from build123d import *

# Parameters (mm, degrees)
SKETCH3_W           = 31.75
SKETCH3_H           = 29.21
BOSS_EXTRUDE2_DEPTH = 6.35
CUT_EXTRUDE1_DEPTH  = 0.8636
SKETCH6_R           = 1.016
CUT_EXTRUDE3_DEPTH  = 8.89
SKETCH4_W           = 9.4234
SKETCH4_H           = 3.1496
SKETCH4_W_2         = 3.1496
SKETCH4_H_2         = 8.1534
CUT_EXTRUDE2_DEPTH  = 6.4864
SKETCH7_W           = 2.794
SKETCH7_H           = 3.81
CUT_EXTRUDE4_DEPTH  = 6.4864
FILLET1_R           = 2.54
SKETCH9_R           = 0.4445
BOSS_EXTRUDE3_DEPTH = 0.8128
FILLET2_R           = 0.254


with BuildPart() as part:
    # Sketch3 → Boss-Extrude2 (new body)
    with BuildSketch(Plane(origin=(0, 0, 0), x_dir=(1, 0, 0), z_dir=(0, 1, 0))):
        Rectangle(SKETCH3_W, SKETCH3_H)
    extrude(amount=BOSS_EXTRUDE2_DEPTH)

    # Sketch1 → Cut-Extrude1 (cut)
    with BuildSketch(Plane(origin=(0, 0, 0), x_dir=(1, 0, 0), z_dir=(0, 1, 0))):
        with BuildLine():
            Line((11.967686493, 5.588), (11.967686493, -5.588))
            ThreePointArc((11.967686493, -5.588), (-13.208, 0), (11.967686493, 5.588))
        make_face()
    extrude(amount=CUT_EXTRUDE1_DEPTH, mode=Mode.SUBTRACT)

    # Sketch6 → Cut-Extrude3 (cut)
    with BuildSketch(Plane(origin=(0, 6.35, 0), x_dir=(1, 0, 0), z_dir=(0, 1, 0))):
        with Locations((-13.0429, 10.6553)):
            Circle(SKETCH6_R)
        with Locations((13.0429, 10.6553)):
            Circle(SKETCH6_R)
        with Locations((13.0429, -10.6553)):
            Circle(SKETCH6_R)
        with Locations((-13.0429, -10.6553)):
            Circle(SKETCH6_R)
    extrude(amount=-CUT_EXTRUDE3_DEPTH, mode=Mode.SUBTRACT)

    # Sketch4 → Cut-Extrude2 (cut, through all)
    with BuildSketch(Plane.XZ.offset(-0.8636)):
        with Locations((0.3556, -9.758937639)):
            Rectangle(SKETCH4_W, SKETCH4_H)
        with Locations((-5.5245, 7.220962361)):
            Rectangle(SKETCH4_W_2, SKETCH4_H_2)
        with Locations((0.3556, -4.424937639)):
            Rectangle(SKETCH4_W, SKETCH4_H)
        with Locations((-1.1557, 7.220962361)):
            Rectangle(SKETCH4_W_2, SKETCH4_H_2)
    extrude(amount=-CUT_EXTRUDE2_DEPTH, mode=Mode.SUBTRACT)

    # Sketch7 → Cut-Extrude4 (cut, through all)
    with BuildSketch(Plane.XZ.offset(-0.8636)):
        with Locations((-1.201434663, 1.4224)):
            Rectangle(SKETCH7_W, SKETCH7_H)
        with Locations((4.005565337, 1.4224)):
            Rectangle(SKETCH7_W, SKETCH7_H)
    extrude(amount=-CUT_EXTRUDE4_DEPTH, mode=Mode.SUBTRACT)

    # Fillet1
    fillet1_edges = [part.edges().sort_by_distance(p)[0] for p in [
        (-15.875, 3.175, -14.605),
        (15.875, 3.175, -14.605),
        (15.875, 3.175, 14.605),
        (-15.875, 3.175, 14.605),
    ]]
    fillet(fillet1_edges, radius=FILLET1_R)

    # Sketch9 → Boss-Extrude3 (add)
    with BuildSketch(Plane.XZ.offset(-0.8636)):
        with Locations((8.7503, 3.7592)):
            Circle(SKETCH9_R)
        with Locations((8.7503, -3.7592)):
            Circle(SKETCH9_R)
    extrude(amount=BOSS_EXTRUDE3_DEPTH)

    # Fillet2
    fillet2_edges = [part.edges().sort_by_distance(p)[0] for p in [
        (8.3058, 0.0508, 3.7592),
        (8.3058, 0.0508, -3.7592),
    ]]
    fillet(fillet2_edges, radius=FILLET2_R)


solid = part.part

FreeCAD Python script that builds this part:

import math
import FreeCAD as App
import Part
import Sketcher
from FreeCAD import Vector
Q = App.Units.Quantity


def edges_at(feature, points):
    """Names of the edges that pass closest to the given points."""
    edges = feature.Shape.Edges
    near = lambda p: min(range(len(edges)), key=lambda i: edges[i].distToShape(Part.Vertex(*p))[0])
    return sorted({f"Edge{near(p) + 1}" for p in points})

doc = App.newDocument("Part")
body = doc.addObject("PartDesign::Body", "Body")

# Sketch on XZ plane
sketch1 = doc.addObject("Sketcher::SketchObject", "Sketch")
body.addObject(sketch1)
sketch1.AttachmentSupport = (doc.XZ_Plane, [""])
sketch1.MapMode = "FlatFace"
sketch1.addGeometry(Part.LineSegment(Vector(-15.875, -14.605, 0), Vector(-15.875, 14.605, 0)), False)
sketch1.addGeometry(Part.LineSegment(Vector(-15.875, 14.605, 0), Vector(15.875, 14.605, 0)), False)
sketch1.addGeometry(Part.LineSegment(Vector(15.875, 14.605, 0), Vector(15.875, -14.605, 0)), False)
sketch1.addGeometry(Part.LineSegment(Vector(15.875, -14.605, 0), Vector(-15.875, -14.605, 0)), False)
sketch1.addConstraint(Sketcher.Constraint("Coincident", 0, 2, 1, 1))
sketch1.addConstraint(Sketcher.Constraint("Coincident", 1, 2, 2, 1))
sketch1.addConstraint(Sketcher.Constraint("Coincident", 2, 2, 3, 1))
sketch1.addConstraint(Sketcher.Constraint("Coincident", 3, 2, 0, 1))
sketch1.addConstraint(Sketcher.Constraint("Vertical", 0))
sketch1.addConstraint(Sketcher.Constraint("Horizontal", 1))
sketch1.addConstraint(Sketcher.Constraint("Vertical", 2))
sketch1.addConstraint(Sketcher.Constraint("Horizontal", 3))
sketch1.addConstraint(Sketcher.Constraint("Symmetric", 0, 2, 2, 2, -1, 1))
sketch1.addConstraint(Sketcher.Constraint("DistanceX", 1, 1, 1, 2, Q("1.25 in")))
sketch1.addConstraint(Sketcher.Constraint("DistanceY", 0, 1, 0, 2, Q("1.15 in")))
pad1 = doc.addObject("PartDesign::Pad", "Pad")
body.addObject(pad1)
pad1.Profile = sketch1
pad1.Length = Q("0.25 in")
pad1.Reversed = True

# Sketch on XZ plane
sketch2 = doc.addObject("Sketcher::SketchObject", "Sketch001")
body.addObject(sketch2)
sketch2.AttachmentSupport = (doc.XZ_Plane, [""])
sketch2.MapMode = "FlatFace"
sketch2.addGeometry(Part.LineSegment(Vector(11.967686, 5.588, 0), Vector(11.967686, -5.588, 0)), False)
sketch2.addGeometry(Part.ArcOfCircle(Part.Circle(Vector(0, 0, 0), Vector(0, 0, 1), 13.208), math.radians(25.028999), math.radians(334.971001)), False)
sketch2.addConstraint(Sketcher.Constraint("Coincident", 0, 1, 1, 1))
sketch2.addConstraint(Sketcher.Constraint("Coincident", 1, 2, 0, 2))
sketch2.addConstraint(Sketcher.Constraint("Vertical", 0))
sketch2.addConstraint(Sketcher.Constraint("Coincident", 1, 3, -1, 1))
sketch2.addConstraint(Sketcher.Constraint("Radius", 1, Q("0.52 in")))
sketch2.addConstraint(Sketcher.Constraint("DistanceY", 0, 2, 0, 1, Q("0.44 in")))
pocket1 = doc.addObject("PartDesign::Pocket", "Pocket")
body.addObject(pocket1)
pocket1.Profile = sketch2
pocket1.Length = Q("0.034 in")

# Sketch on XZ plane
sketch3 = doc.addObject("Sketcher::SketchObject", "Sketch002")
body.addObject(sketch3)
sketch3.AttachmentSupport = (doc.XZ_Plane, [""])
sketch3.MapMode = "FlatFace"
sketch3.AttachmentOffset = App.Placement(Vector(0, 0, -0.25 * 25.4), App.Rotation())
sketch3.addGeometry(Part.Circle(Vector(-13.0429, -10.6553, 0), Vector(0, 0, 1), 1.016), False)
sketch3.addGeometry(Part.Circle(Vector(13.0429, -10.6553, 0), Vector(0, 0, 1), 1.016), False)
sketch3.addGeometry(Part.Circle(Vector(13.0429, 10.6553, 0), Vector(0, 0, 1), 1.016), False)
sketch3.addGeometry(Part.Circle(Vector(-13.0429, 10.6553, 0), Vector(0, 0, 1), 1.016), False)
sketch3.addConstraint(Sketcher.Constraint("Equal", 0, 1))
sketch3.addConstraint(Sketcher.Constraint("Equal", 1, 2))
sketch3.addConstraint(Sketcher.Constraint("Equal", 2, 3))
sketch3.addConstraint(Sketcher.Constraint("Symmetric", 0, 3, 2, 3, -1, 1))
sketch3.addConstraint(Sketcher.Constraint("Symmetric", 1, 3, 3, 3, -1, 1))
sketch3.addConstraint(Sketcher.Constraint("Symmetric", 0, 3, 1, 3, -2))
sketch3.addConstraint(Sketcher.Constraint("Diameter", 0, Q("0.08 in")))
sketch3.addConstraint(Sketcher.Constraint("DistanceX", 0, 3, 1, 3, Q("1.027 in")))
sketch3.addConstraint(Sketcher.Constraint("DistanceY", 1, 3, 2, 3, Q("0.839 in")))
pocket2 = doc.addObject("PartDesign::Pocket", "Pocket001")
body.addObject(pocket2)
pocket2.Profile = sketch3
pocket2.Length = Q("0.35 in")
pocket2.Reversed = True

# Sketch on XZ plane
sketch4 = doc.addObject("Sketcher::SketchObject", "Sketch003")
body.addObject(sketch4)
sketch4.AttachmentSupport = (doc.XZ_Plane, [""])
sketch4.MapMode = "FlatFace"
sketch4.AttachmentOffset = App.Placement(Vector(0, 0, -0.034 * 25.4), App.Rotation())
sketch4.addGeometry(Part.LineSegment(Vector(-4.3561, -8.184138, 0), Vector(-4.3561, -11.333738, 0)), False)
sketch4.addGeometry(Part.LineSegment(Vector(-4.3561, -11.333738, 0), Vector(5.0673, -11.333738, 0)), False)
sketch4.addGeometry(Part.LineSegment(Vector(5.0673, -11.333738, 0), Vector(5.0673, -8.184138, 0)), False)
sketch4.addGeometry(Part.LineSegment(Vector(5.0673, -8.184138, 0), Vector(-4.3561, -8.184138, 0)), False)
sketch4.addGeometry(Part.LineSegment(Vector(-7.0993, 11.297662, 0), Vector(-7.0993, 3.144262, 0)), False)
sketch4.addGeometry(Part.LineSegment(Vector(-7.0993, 3.144262, 0), Vector(-3.9497, 3.144262, 0)), False)
sketch4.addGeometry(Part.LineSegment(Vector(-3.9497, 3.144262, 0), Vector(-3.9497, 11.297662, 0)), False)
sketch4.addGeometry(Part.LineSegment(Vector(-3.9497, 11.297662, 0), Vector(-7.0993, 11.297662, 0)), False)
sketch4.addGeometry(Part.LineSegment(Vector(-4.3561, -2.850138, 0), Vector(-4.3561, -5.999738, 0)), False)
sketch4.addGeometry(Part.LineSegment(Vector(-4.3561, -5.999738, 0), Vector(5.0673, -5.999738, 0)), False)
sketch4.addGeometry(Part.LineSegment(Vector(5.0673, -5.999738, 0), Vector(5.0673, -2.850138, 0)), False)
sketch4.addGeometry(Part.LineSegment(Vector(5.0673, -2.850138, 0), Vector(-4.3561, -2.850138, 0)), False)
sketch4.addGeometry(Part.LineSegment(Vector(-2.7305, 11.297662, 0), Vector(-2.7305, 3.144262, 0)), False)
sketch4.addGeometry(Part.LineSegment(Vector(-2.7305, 3.144262, 0), Vector(0.4191, 3.144262, 0)), False)
sketch4.addGeometry(Part.LineSegment(Vector(0.4191, 3.144262, 0), Vector(0.4191, 11.297662, 0)), False)
sketch4.addGeometry(Part.LineSegment(Vector(0.4191, 11.297662, 0), Vector(-2.7305, 11.297662, 0)), False)
sketch4.addConstraint(Sketcher.Constraint("Coincident", 0, 2, 1, 1))
sketch4.addConstraint(Sketcher.Constraint("Coincident", 1, 2, 2, 1))
sketch4.addConstraint(Sketcher.Constraint("Coincident", 2, 2, 3, 1))
sketch4.addConstraint(Sketcher.Constraint("Coincident", 3, 2, 0, 1))
sketch4.addConstraint(Sketcher.Constraint("Coincident", 4, 2, 5, 1))
sketch4.addConstraint(Sketcher.Constraint("Coincident", 5, 2, 6, 1))
sketch4.addConstraint(Sketcher.Constraint("Coincident", 6, 2, 7, 1))
sketch4.addConstraint(Sketcher.Constraint("Coincident", 7, 2, 4, 1))
sketch4.addConstraint(Sketcher.Constraint("Coincident", 8, 2, 9, 1))
sketch4.addConstraint(Sketcher.Constraint("Coincident", 9, 2, 10, 1))
sketch4.addConstraint(Sketcher.Constraint("Coincident", 10, 2, 11, 1))
sketch4.addConstraint(Sketcher.Constraint("Coincident", 11, 2, 8, 1))
sketch4.addConstraint(Sketcher.Constraint("Coincident", 12, 2, 13, 1))
sketch4.addConstraint(Sketcher.Constraint("Coincident", 13, 2, 14, 1))
sketch4.addConstraint(Sketcher.Constraint("Coincident", 14, 2, 15, 1))
sketch4.addConstraint(Sketcher.Constraint("Coincident", 15, 2, 12, 1))
sketch4.addConstraint(Sketcher.Constraint("Vertical", 0))
sketch4.addConstraint(Sketcher.Constraint("Horizontal", 1))
sketch4.addConstraint(Sketcher.Constraint("Vertical", 2))
sketch4.addConstraint(Sketcher.Constraint("Horizontal", 3))
sketch4.addConstraint(Sketcher.Constraint("Vertical", 4))
sketch4.addConstraint(Sketcher.Constraint("Horizontal", 5))
sketch4.addConstraint(Sketcher.Constraint("Vertical", 6))
sketch4.addConstraint(Sketcher.Constraint("Horizontal", 7))
sketch4.addConstraint(Sketcher.Constraint("Vertical", 8))
sketch4.addConstraint(Sketcher.Constraint("Horizontal", 9))
sketch4.addConstraint(Sketcher.Constraint("Vertical", 10))
sketch4.addConstraint(Sketcher.Constraint("Horizontal", 11))
sketch4.addConstraint(Sketcher.Constraint("Vertical", 12))
sketch4.addConstraint(Sketcher.Constraint("Horizontal", 13))
sketch4.addConstraint(Sketcher.Constraint("Vertical", 14))
sketch4.addConstraint(Sketcher.Constraint("Horizontal", 15))
sketch4.addConstraint(Sketcher.Constraint("Horizontal", 5, 2, 12, 2))
sketch4.addConstraint(Sketcher.Constraint("Horizontal", 7, 2, 14, 2))
sketch4.addConstraint(Sketcher.Constraint("Vertical", 3, 2, 8, 2))
sketch4.addConstraint(Sketcher.Constraint("Vertical", 2, 2, 9, 2))
sketch4.addConstraint(Sketcher.Constraint("Equal", 7, 13))
sketch4.addConstraint(Sketcher.Constraint("Equal", 15, 0))
sketch4.addConstraint(Sketcher.Constraint("Equal", 2, 8))
sketch4.addConstraint(Sketcher.Constraint("DistanceX", 1, 1, 1, 2, Q("0.371 in")))
sketch4.addConstraint(Sketcher.Constraint("DistanceX", 5, 1, 5, 2, Q("0.124 in")))
sketch4.addConstraint(Sketcher.Constraint("DistanceY", 4, 2, 4, 1, Q("0.321 in")))
sketch4.addConstraint(Sketcher.Constraint("DistanceY", 0, 2, 4, 2, Q("0.57 in")))
sketch4.addConstraint(Sketcher.Constraint("DistanceY", 0, 2, 8, 2, Q("0.21 in")))
sketch4.addConstraint(Sketcher.Constraint("DistanceX", 4, 2, 3, 2, Q("0.108 in")))
sketch4.addConstraint(Sketcher.Constraint("DistanceX", 5, 2, 12, 2, Q("0.048 in")))
sketch4.addConstraint(Sketcher.Constraint("DistanceX", 0, 2, -1, 1, Q("0.1715 in")))
sketch4.addConstraint(Sketcher.Constraint("DistanceY", 0, 2, -1, 1, 11.333738))
pocket3 = doc.addObject("PartDesign::Pocket", "Pocket002")
body.addObject(pocket3)
pocket3.Profile = sketch4
pocket3.Type = "ThroughAll"

# Sketch on XZ plane
sketch5 = doc.addObject("Sketcher::SketchObject", "Sketch004")
body.addObject(sketch5)
sketch5.AttachmentSupport = (doc.XZ_Plane, [""])
sketch5.MapMode = "FlatFace"
sketch5.AttachmentOffset = App.Placement(Vector(0, 0, -0.034 * 25.4), App.Rotation())
sketch5.addGeometry(Part.LineSegment(Vector(-2.598435, 3.3274, 0), Vector(-2.598435, -0.4826, 0)), False)
sketch5.addGeometry(Part.LineSegment(Vector(-2.598435, -0.4826, 0), Vector(0.195565, -0.4826, 0)), False)
sketch5.addGeometry(Part.LineSegment(Vector(0.195565, -0.4826, 0), Vector(0.195565, 3.3274, 0)), False)
sketch5.addGeometry(Part.LineSegment(Vector(0.195565, 3.3274, 0), Vector(-2.598435, 3.3274, 0)), False)
sketch5.addGeometry(Part.LineSegment(Vector(2.608565, 3.3274, 0), Vector(2.608565, -0.4826, 0)), False)
sketch5.addGeometry(Part.LineSegment(Vector(2.608565, -0.4826, 0), Vector(5.402565, -0.4826, 0)), False)
sketch5.addGeometry(Part.LineSegment(Vector(5.402565, -0.4826, 0), Vector(5.402565, 3.3274, 0)), False)
sketch5.addGeometry(Part.LineSegment(Vector(5.402565, 3.3274, 0), Vector(2.608565, 3.3274, 0)), False)
sketch5.addConstraint(Sketcher.Constraint("Coincident", 0, 2, 1, 1))
sketch5.addConstraint(Sketcher.Constraint("Coincident", 1, 2, 2, 1))
sketch5.addConstraint(Sketcher.Constraint("Coincident", 2, 2, 3, 1))
sketch5.addConstraint(Sketcher.Constraint("Coincident", 3, 2, 0, 1))
sketch5.addConstraint(Sketcher.Constraint("Coincident", 4, 2, 5, 1))
sketch5.addConstraint(Sketcher.Constraint("Coincident", 5, 2, 6, 1))
sketch5.addConstraint(Sketcher.Constraint("Coincident", 6, 2, 7, 1))
sketch5.addConstraint(Sketcher.Constraint("Coincident", 7, 2, 4, 1))
sketch5.addConstraint(Sketcher.Constraint("Vertical", 0))
sketch5.addConstraint(Sketcher.Constraint("Horizontal", 1))
sketch5.addConstraint(Sketcher.Constraint("Vertical", 2))
sketch5.addConstraint(Sketcher.Constraint("Horizontal", 3))
sketch5.addConstraint(Sketcher.Constraint("Vertical", 4))
sketch5.addConstraint(Sketcher.Constraint("Horizontal", 5))
sketch5.addConstraint(Sketcher.Constraint("Vertical", 6))
sketch5.addConstraint(Sketcher.Constraint("Horizontal", 7))
sketch5.addConstraint(Sketcher.Constraint("Horizontal", 1, 2, 4, 2))
sketch5.addConstraint(Sketcher.Constraint("Horizontal", 3, 2, 6, 2))
sketch5.addConstraint(Sketcher.Constraint("Equal", 3, 5))
sketch5.addConstraint(Sketcher.Constraint("DistanceX", 1, 1, 1, 2, Q("0.11 in")))
sketch5.addConstraint(Sketcher.Constraint("DistanceY", 0, 2, 0, 1, Q("0.15 in")))
sketch5.addConstraint(Sketcher.Constraint("DistanceY", 0, 2, -1, 1, Q("0.019 in")))
sketch5.addConstraint(Sketcher.Constraint("DistanceX", 1, 2, 4, 2, Q("0.095 in")))
sketch5.addConstraint(Sketcher.Constraint("DistanceX", 0, 2, -1, 1, 2.598435))
pocket4 = doc.addObject("PartDesign::Pocket", "Pocket003")
body.addObject(pocket4)
pocket4.Profile = sketch5
pocket4.Type = "ThroughAll"
doc.recompute()

fillet = doc.addObject("PartDesign::Fillet", "Fillet")
body.addObject(fillet)
fillet.Base = (pocket4, edges_at(pocket4, [
    (-15.875, 3.175, -14.605),
    (15.875, 3.175, -14.605),
    (15.875, 3.175, 14.605),
    (-15.875, 3.175, 14.605),
]))
fillet.Radius = Q("0.1 in")

# Sketch on XZ plane
sketch6 = doc.addObject("Sketcher::SketchObject", "Sketch005")
body.addObject(sketch6)
sketch6.AttachmentSupport = (doc.XZ_Plane, [""])
sketch6.MapMode = "FlatFace"
sketch6.AttachmentOffset = App.Placement(Vector(0, 0, -0.034 * 25.4), App.Rotation())
sketch6.addGeometry(Part.Circle(Vector(8.7503, 3.7592, 0), Vector(0, 0, 1), 0.4445), False)
sketch6.addGeometry(Part.Circle(Vector(8.7503, -3.7592, 0), Vector(0, 0, 1), 0.4445), False)
sketch6.addConstraint(Sketcher.Constraint("Equal", 0, 1))
sketch6.addConstraint(Sketcher.Constraint("Symmetric", 0, 3, 1, 3, -1))
sketch6.addConstraint(Sketcher.Constraint("Diameter", 0, Q("0.035 in")))
sketch6.addConstraint(Sketcher.Constraint("DistanceY", -1, 1, 0, 3, Q("0.148 in")))
sketch6.addConstraint(Sketcher.Constraint("DistanceX", -1, 1, 0, 3, Q("0.3445 in")))
pad2 = doc.addObject("PartDesign::Pad", "Pad001")
body.addObject(pad2)
pad2.Profile = sketch6
pad2.Length = Q("0.032 in")
doc.recompute()

fillet2 = doc.addObject("PartDesign::Fillet", "Fillet001")
body.addObject(fillet2)
fillet2.Base = (pad2, edges_at(pad2, [(8.306, 0.051, 3.759), (8.306, 0.051, -3.759)]))
fillet2.Radius = Q("0.01 in")

doc.recompute()
